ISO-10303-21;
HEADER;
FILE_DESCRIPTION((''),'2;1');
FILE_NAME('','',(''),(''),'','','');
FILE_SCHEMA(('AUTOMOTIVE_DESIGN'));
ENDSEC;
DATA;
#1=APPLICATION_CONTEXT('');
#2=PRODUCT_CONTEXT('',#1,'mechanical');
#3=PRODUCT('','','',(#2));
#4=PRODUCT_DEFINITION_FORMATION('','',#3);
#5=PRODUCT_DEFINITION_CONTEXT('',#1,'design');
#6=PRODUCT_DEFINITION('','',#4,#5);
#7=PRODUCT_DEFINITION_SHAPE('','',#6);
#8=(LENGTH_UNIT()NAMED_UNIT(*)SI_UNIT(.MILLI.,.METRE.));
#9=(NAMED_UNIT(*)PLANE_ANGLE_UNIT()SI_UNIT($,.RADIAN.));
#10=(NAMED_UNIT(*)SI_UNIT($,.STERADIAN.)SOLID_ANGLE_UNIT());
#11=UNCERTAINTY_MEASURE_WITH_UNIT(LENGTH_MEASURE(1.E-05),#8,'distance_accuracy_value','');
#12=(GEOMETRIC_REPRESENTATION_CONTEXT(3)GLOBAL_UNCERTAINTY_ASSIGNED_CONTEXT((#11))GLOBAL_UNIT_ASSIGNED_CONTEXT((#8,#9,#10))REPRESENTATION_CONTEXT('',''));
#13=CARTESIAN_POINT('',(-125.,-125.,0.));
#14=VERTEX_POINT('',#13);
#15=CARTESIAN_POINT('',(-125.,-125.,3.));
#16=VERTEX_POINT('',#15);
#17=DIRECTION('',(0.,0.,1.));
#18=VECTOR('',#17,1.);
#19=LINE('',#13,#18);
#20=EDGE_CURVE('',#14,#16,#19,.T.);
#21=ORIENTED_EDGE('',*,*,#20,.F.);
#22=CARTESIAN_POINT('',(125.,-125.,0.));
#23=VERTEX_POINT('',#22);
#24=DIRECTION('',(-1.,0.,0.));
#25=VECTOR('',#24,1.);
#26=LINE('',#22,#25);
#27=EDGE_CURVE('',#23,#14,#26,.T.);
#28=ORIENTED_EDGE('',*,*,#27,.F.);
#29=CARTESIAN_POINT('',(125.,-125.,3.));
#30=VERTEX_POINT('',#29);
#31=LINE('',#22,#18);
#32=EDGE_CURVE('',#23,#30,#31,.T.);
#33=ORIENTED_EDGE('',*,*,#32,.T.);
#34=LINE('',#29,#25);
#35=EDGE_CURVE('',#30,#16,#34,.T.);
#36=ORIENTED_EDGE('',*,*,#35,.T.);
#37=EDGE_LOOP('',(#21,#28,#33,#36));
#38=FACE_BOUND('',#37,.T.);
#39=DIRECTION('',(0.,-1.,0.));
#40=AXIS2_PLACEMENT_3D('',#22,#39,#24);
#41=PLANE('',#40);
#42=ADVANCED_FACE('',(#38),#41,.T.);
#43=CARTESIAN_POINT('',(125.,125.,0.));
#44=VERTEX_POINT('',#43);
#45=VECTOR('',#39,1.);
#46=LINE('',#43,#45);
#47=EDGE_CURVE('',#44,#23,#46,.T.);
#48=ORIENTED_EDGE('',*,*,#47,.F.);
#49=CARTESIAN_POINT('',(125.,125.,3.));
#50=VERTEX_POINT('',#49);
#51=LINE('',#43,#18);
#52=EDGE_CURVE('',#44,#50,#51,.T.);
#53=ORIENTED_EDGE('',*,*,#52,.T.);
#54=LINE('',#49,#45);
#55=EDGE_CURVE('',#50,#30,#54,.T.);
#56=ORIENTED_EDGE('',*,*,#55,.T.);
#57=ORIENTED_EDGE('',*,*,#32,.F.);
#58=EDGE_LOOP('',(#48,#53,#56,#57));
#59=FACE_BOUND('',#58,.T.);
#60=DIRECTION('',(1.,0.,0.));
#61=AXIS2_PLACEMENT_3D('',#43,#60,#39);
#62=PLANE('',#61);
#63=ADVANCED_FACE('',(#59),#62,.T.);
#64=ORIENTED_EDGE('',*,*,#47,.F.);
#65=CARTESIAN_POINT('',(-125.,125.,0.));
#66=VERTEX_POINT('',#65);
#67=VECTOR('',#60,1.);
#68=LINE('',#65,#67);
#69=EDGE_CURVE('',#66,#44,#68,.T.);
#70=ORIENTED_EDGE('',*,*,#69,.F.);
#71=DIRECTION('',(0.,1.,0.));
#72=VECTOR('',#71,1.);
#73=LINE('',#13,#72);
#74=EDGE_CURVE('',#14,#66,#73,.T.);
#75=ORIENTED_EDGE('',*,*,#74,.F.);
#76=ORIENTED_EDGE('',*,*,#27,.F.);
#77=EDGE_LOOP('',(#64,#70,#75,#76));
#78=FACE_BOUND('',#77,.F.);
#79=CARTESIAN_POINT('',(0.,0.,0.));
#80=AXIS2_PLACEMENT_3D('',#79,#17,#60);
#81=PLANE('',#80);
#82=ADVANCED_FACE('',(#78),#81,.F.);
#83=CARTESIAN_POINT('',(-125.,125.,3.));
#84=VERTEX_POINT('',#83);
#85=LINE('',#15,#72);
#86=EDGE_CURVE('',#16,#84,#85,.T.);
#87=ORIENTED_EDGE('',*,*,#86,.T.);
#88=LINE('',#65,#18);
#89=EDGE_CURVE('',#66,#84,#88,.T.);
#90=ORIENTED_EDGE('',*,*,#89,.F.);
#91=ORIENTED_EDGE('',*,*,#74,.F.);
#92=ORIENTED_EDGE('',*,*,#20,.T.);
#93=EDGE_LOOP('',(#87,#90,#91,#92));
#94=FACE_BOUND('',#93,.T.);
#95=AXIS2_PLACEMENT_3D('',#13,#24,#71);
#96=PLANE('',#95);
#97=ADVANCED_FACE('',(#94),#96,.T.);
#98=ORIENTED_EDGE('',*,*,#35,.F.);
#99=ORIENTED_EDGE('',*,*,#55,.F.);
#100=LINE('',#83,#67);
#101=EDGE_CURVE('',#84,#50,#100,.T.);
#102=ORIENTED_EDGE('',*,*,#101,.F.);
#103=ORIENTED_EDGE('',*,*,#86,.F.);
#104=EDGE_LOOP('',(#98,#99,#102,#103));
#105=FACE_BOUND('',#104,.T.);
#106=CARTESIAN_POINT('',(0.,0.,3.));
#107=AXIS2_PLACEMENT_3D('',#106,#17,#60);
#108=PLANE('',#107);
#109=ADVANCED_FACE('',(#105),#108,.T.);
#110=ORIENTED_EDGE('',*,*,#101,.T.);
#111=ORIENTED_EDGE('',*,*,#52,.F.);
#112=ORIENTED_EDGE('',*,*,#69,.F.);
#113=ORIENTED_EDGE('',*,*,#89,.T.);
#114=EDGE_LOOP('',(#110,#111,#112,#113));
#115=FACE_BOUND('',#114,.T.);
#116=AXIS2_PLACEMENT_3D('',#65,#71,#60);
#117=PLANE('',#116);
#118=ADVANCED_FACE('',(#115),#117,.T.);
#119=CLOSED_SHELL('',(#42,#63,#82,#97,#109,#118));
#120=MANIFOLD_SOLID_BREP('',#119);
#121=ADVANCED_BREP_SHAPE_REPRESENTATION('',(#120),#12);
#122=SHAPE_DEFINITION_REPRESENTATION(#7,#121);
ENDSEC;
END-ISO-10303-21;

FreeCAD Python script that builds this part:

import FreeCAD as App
import Part
import Sketcher
from FreeCAD import Vector
Q = App.Units.Quantity

doc = App.newDocument("Part")
body = doc.addObject("PartDesign::Body", "Body")

# Sketch on XY plane
sketch1 = body.newObject("Sketcher::SketchObject", "Sketch")
sketch1.AttachmentSupport = (doc.getObject("XY_Plane"), [""])
sketch1.MapMode = "FlatFace"
sketch1.addGeometry(Part.LineSegment(Vector(125, 125, 0), Vector(-125, 125, 0)), False)
sketch1.addGeometry(Part.LineSegment(Vector(-125, 125, 0), Vector(-125, -125, 0)), False)
sketch1.addGeometry(Part.LineSegment(Vector(-125, -125, 0), Vector(125, -125, 0)), False)
sketch1.addGeometry(Part.LineSegment(Vector(125, -125, 0), Vector(125, 125, 0)), False)
sketch1.addConstraint(Sketcher.Constraint("Coincident", 0, 2, 1, 1))
sketch1.addConstraint(Sketcher.Constraint("Coincident", 1, 2, 2, 1))
sketch1.addConstraint(Sketcher.Constraint("Coincident", 2, 2, 3, 1))
sketch1.addConstraint(Sketcher.Constraint("Coincident", 3, 2, 0, 1))
sketch1.addConstraint(Sketcher.Constraint("Horizontal", 0))
sketch1.addConstraint(Sketcher.Constraint("Vertical", 1))
sketch1.addConstraint(Sketcher.Constraint("Horizontal", 2))
sketch1.addConstraint(Sketcher.Constraint("Vertical", 3))
sketch1.addConstraint(Sketcher.Constraint("Symmetric", 0, 2, 2, 2, -1, 1))
sketch1.addConstraint(Sketcher.Constraint("Equal", 2, 1))
sketch1.addConstraint(Sketcher.Constraint("DistanceX", 0, 2, 0, 1, Q("250 mm")))
pad1 = body.newObject("PartDesign::Pad", "Pad")
pad1.Profile = sketch1
pad1.Length = 3

doc.recompute()
